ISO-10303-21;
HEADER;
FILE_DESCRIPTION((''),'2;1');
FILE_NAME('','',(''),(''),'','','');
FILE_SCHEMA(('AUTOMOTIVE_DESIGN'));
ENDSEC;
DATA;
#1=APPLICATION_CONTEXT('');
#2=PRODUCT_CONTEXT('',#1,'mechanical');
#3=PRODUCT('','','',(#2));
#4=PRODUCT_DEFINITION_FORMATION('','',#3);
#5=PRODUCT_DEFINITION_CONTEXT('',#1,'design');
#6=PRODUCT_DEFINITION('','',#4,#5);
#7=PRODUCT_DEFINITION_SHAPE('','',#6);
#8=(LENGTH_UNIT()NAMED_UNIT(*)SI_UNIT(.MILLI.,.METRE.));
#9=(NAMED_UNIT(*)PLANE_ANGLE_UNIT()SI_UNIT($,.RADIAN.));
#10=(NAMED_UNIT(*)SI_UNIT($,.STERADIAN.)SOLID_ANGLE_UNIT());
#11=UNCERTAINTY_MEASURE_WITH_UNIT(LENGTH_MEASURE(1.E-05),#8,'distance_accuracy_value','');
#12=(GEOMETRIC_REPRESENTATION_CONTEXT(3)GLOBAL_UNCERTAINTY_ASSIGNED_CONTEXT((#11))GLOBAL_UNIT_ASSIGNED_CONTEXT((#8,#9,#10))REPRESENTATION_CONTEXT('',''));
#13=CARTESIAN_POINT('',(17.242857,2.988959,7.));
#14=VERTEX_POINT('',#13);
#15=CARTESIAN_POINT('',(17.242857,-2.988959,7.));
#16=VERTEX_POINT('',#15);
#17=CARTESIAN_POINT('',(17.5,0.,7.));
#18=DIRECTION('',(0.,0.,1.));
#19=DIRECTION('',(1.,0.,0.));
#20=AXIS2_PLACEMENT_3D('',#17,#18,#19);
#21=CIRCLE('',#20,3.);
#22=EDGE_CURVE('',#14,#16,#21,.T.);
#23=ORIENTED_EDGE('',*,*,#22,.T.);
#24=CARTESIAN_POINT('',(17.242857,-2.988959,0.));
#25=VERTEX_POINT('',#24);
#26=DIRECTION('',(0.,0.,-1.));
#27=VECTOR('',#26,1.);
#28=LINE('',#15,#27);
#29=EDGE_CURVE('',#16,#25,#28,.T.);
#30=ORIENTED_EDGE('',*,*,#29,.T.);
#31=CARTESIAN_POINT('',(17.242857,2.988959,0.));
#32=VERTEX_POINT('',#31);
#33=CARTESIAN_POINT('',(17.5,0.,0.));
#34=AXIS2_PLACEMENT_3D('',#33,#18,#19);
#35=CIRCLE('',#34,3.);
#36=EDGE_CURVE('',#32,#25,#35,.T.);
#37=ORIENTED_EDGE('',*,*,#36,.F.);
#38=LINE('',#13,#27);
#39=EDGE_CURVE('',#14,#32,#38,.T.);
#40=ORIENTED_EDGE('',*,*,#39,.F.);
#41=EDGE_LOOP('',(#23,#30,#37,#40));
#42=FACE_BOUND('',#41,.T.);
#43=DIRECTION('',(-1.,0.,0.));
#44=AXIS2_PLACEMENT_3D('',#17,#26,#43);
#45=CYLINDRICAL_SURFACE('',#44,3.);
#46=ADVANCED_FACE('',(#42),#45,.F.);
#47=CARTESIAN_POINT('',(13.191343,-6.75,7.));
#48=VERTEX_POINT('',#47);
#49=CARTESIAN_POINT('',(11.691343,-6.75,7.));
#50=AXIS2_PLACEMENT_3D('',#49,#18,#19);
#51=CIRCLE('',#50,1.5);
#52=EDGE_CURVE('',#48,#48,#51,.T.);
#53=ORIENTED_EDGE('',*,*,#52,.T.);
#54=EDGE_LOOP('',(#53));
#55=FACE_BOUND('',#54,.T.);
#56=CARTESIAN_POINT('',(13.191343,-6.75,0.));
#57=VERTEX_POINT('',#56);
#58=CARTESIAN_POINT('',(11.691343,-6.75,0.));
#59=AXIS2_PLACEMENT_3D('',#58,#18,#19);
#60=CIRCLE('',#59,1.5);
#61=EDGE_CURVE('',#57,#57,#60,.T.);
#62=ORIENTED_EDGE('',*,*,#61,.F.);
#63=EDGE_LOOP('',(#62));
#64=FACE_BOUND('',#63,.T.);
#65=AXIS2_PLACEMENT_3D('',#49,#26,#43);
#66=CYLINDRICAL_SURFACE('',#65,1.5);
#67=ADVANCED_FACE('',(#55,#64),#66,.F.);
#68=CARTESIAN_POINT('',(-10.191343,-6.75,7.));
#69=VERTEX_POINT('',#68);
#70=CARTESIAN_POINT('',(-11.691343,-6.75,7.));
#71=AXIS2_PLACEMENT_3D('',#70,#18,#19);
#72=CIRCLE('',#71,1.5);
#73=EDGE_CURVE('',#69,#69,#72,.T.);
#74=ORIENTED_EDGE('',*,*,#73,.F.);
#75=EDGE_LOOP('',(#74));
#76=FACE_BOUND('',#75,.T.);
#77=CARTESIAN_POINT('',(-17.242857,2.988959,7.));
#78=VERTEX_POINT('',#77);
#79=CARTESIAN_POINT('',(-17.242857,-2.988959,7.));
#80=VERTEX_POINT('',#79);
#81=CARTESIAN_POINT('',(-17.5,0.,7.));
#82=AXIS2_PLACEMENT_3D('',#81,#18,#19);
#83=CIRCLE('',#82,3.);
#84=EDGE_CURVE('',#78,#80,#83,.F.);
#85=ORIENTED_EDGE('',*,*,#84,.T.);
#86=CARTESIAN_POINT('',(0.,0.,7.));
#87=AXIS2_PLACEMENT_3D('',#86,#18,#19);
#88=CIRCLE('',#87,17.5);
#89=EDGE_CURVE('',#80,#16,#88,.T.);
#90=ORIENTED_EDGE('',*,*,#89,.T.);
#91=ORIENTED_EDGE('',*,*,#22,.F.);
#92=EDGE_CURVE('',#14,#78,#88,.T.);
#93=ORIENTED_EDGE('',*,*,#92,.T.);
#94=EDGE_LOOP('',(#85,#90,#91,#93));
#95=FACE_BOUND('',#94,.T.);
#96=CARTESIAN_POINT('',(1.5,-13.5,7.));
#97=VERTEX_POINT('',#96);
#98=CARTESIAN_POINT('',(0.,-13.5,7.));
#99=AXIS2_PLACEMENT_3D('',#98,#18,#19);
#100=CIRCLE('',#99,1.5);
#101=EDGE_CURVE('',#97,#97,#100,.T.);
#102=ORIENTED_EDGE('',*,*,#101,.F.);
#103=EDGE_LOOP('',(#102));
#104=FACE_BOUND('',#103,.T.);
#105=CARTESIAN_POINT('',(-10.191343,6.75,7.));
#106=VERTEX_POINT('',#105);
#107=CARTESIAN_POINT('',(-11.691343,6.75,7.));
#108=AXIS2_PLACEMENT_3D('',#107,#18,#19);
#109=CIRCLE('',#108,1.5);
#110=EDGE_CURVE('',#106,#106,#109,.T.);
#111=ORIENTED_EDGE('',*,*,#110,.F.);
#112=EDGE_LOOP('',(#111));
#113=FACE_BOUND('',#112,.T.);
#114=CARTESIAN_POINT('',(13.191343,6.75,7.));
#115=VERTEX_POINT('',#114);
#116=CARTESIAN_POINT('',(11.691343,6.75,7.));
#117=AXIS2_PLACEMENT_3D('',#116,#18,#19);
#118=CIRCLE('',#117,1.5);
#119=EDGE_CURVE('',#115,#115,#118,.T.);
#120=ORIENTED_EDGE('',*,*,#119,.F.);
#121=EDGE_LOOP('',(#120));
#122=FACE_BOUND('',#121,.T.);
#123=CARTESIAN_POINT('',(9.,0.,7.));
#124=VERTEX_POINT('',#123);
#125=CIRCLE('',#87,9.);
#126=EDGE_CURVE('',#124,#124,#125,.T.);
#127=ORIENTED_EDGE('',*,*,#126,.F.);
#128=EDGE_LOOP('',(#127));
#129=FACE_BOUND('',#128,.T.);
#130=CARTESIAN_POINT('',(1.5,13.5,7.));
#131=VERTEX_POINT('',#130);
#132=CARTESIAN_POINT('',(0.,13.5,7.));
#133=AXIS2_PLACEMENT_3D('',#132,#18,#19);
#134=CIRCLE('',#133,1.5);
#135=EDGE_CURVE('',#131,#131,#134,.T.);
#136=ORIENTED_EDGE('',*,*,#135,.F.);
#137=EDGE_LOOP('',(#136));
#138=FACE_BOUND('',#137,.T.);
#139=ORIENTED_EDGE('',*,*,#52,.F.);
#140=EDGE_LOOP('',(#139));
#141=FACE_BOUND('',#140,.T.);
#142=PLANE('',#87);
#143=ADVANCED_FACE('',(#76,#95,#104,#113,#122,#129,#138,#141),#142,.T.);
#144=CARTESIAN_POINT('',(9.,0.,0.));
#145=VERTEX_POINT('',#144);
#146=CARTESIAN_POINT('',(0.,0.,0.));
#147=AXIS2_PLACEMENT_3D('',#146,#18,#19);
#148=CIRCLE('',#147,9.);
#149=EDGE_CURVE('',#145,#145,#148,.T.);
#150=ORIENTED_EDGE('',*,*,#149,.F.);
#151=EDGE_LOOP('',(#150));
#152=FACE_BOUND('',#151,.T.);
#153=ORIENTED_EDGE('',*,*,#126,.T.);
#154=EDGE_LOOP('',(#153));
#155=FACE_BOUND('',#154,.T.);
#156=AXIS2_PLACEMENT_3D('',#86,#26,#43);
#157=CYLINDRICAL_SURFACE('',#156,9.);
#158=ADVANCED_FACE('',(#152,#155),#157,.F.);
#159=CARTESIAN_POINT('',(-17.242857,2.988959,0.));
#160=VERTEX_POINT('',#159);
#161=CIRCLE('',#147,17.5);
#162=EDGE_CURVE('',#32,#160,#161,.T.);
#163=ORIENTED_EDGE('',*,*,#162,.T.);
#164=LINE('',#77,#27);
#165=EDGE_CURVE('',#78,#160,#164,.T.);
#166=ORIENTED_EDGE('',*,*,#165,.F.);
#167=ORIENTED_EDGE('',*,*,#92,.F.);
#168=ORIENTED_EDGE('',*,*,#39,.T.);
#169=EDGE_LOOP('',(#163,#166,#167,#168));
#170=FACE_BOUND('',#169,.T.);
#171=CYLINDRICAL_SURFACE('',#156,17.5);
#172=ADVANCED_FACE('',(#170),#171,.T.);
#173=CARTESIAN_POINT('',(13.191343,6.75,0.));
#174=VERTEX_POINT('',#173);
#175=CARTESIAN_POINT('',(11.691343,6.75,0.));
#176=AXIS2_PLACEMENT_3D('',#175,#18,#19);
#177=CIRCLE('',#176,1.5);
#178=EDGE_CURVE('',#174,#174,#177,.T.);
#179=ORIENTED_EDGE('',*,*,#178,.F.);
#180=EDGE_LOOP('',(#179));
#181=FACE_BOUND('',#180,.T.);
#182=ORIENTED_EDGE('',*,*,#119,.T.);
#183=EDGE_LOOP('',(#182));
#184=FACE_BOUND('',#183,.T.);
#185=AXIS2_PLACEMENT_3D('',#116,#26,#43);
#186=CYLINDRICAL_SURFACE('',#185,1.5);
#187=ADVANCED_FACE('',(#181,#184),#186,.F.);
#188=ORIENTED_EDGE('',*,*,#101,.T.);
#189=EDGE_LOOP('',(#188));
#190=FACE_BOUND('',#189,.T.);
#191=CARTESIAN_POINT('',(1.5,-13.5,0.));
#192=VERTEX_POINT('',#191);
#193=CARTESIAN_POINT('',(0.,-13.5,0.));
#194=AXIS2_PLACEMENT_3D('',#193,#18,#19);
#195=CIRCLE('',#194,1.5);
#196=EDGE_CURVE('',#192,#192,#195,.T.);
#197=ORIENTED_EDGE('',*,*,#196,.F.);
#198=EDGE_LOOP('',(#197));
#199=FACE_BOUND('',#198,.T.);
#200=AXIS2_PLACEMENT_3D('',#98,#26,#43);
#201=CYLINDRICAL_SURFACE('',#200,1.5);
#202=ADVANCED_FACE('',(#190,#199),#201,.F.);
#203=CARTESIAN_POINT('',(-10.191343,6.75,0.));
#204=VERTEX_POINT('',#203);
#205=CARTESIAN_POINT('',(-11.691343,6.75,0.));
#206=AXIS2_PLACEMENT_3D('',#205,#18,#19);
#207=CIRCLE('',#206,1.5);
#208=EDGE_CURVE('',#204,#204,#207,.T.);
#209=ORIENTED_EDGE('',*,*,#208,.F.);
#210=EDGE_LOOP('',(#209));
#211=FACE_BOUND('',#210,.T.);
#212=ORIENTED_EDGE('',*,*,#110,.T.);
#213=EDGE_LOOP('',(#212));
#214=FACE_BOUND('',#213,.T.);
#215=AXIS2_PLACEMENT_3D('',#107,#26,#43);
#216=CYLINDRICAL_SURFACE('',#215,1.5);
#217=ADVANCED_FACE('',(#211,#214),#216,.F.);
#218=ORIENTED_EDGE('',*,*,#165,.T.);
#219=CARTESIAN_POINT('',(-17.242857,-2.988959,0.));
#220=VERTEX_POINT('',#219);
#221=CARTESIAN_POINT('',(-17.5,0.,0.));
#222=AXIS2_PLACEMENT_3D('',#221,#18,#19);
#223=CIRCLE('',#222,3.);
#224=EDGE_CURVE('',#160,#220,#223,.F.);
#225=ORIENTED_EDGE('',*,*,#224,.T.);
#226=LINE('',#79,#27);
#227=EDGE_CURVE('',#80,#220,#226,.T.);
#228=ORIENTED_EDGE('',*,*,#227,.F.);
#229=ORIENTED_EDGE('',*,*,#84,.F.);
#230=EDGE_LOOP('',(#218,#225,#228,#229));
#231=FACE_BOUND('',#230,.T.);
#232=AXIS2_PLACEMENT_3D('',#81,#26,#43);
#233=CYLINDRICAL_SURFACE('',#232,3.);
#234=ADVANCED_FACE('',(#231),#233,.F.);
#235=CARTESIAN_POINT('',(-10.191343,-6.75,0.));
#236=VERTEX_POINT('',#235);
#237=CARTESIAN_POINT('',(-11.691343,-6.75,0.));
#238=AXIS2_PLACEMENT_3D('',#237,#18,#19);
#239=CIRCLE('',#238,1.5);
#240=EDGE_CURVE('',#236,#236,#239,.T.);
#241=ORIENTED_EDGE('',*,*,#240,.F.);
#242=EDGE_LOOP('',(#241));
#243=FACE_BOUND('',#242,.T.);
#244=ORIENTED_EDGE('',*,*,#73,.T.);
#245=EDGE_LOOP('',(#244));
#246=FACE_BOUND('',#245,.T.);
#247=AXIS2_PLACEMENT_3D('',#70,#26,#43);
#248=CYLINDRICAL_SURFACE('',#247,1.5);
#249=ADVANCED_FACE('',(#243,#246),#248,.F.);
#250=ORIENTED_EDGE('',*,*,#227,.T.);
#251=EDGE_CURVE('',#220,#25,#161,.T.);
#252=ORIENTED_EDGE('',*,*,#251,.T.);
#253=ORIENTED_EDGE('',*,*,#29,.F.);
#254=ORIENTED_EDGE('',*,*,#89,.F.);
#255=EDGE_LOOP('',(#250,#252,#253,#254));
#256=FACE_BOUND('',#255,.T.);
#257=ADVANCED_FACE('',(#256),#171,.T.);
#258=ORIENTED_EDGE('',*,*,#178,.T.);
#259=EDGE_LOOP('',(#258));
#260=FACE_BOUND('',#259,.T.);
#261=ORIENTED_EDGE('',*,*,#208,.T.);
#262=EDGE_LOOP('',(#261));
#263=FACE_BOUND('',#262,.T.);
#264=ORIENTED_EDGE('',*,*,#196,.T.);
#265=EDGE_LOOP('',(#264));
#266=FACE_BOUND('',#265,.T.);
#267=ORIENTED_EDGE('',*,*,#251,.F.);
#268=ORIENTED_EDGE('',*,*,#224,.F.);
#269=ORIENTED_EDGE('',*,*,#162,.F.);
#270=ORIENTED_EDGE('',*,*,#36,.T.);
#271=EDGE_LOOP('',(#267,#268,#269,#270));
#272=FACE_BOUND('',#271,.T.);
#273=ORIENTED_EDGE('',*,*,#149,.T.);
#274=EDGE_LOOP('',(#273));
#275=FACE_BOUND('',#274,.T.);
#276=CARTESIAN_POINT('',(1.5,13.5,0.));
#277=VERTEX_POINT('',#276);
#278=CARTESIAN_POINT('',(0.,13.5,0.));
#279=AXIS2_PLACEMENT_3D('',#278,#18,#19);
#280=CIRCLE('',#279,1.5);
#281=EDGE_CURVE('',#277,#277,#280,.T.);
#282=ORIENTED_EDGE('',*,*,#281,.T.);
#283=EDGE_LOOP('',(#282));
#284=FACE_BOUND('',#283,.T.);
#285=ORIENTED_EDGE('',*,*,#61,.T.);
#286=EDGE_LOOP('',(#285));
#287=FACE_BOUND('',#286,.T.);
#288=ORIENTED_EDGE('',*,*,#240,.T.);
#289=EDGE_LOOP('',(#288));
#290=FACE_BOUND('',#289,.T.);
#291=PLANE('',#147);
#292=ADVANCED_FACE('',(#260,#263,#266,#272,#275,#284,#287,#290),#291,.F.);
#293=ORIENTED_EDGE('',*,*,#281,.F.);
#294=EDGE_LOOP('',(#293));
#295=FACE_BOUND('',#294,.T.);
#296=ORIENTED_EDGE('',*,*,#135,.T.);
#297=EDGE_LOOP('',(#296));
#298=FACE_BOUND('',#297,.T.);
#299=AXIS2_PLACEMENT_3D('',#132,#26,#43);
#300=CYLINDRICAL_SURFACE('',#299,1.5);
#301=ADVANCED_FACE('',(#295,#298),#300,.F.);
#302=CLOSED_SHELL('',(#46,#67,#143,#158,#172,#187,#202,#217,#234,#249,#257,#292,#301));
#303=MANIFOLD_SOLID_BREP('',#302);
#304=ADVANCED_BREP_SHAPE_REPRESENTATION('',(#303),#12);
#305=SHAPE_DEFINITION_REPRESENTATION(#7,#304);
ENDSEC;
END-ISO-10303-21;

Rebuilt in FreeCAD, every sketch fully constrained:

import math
import FreeCAD as App
import Part
import Sketcher

doc = App.newDocument("Part")
body = doc.addObject("PartDesign::Body", "Body")

# Sketch on XY plane
sketch1 = doc.addObject("Sketcher::SketchObject", "Sketch")
body.addObject(sketch1)
sketch1.AttachmentSupport = (doc.XY_Plane, [""])
sketch1.MapMode = "FlatFace"
sketch1.addGeometry([
    Part.ArcOfCircle(Part.Circle(App.Vector(17.5, 0, 0), App.Vector(0, 0, 1), 3), math.radians(94.9171), math.radians(265.0829)),  # 0
    Part.ArcOfCircle(Part.Circle(App.Vector(0, 0, 0), App.Vector(0, 0, 1), 17.5), math.radians(9.834201), math.radians(170.165799)),  # 1
    Part.ArcOfCircle(Part.Circle(App.Vector(-17.5, 0, 0), App.Vector(0, 0, 1), 3), math.radians(-85.0829), math.radians(85.0829)),  # 2
    Part.ArcOfCircle(Part.Circle(App.Vector(0, 0, 0), App.Vector(0, 0, 1), 17.5), math.radians(-170.165799), math.radians(-9.834201)),  # 3
    Part.Circle(App.Vector(-11.691343, -6.75, 0), App.Vector(0, 0, 1), 1.5),  # 4
    Part.Circle(App.Vector(0, -13.5, 0), App.Vector(0, 0, 1), 1.5),  # 5
    Part.Circle(App.Vector(11.691343, -6.75, 0), App.Vector(0, 0, 1), 1.5),  # 6
    Part.Circle(App.Vector(-11.691343, 6.75, 0), App.Vector(0, 0, 1), 1.5),  # 7
    Part.Circle(App.Vector(0, 0, 0), App.Vector(0, 0, 1), 9),  # 8
    Part.Circle(App.Vector(11.691343, 6.75, 0), App.Vector(0, 0, 1), 1.5),  # 9
    Part.Circle(App.Vector(0, 13.5, 0), App.Vector(0, 0, 1), 1.5),  # 10
], False)
sketch1.addConstraint([
    Sketcher.Constraint("Coincident", 0, 1, 1, 1),
    Sketcher.Constraint("Coincident", 1, 2, 2, 2),
    Sketcher.Constraint("Coincident", 2, 1, 3, 1),
    Sketcher.Constraint("Coincident", 3, 2, 0, 2),
    Sketcher.Constraint("Coincident", 1, 3, -1, 1),
    Sketcher.Constraint("Coincident", 3, 3, -1, 1),
    Sketcher.Constraint("Coincident", 8, 3, -1, 1),
    Sketcher.Constraint("Equal", 0, 2),
    Sketcher.Constraint("Equal", 1, 3),
    Sketcher.Constraint("Equal", 4, 5),
    Sketcher.Constraint("Equal", 5, 6),
    Sketcher.Constraint("Equal", 6, 7),
    Sketcher.Constraint("Equal", 7, 9),
    Sketcher.Constraint("Equal", 9, 10),
    Sketcher.Constraint("Symmetric", 0, 3, 2, 3, -1, 1),
    Sketcher.Constraint("Symmetric", 6, 3, 7, 3, -1, 1),
    Sketcher.Constraint("Symmetric", 4, 3, 9, 3, -1, 1),
    Sketcher.Constraint("Symmetric", 5, 3, 10, 3, -1, 1),
    Sketcher.Constraint("Symmetric", 4, 3, 6, 3, -2),
    Sketcher.Constraint("PointOnObject", 0, 3, -1),
    Sketcher.Constraint("PointOnObject", 5, 3, -2),
    Sketcher.Constraint("Diameter", 4, 3.0),
    Sketcher.Constraint("Diameter", 8, 18.0),
    Sketcher.Constraint("Radius", 0, 3.0),
    Sketcher.Constraint("Radius", 1, 17.5),
    Sketcher.Constraint("DistanceX", 2, 3, 0, 3, 35.0),
    Sketcher.Constraint("DistanceY", 5, 3, -1, 1, 13.5),
    Sketcher.Constraint("DistanceY", 4, 3, 7, 3, 13.5),
    Sketcher.Constraint("DistanceX", 4, 3, -1, 1, 11.691343),
])
pad1 = doc.addObject("PartDesign::Pad", "Pad")
body.addObject(pad1)
pad1.Profile = sketch1
pad1.Length = 7

doc.recompute()
